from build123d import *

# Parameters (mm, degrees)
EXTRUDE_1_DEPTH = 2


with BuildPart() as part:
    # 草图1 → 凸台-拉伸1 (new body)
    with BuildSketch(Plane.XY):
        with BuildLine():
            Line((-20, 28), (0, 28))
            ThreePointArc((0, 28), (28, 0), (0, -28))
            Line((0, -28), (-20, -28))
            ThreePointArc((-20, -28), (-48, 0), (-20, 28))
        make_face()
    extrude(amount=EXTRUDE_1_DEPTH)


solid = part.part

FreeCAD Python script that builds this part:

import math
import FreeCAD as App
import Part
import Sketcher
from FreeCAD import Vector
Q = App.Units.Quantity

doc = App.newDocument("Part")
body = doc.addObject("PartDesign::Body", "Body")

# Sketch on XY plane
sketch1 = doc.addObject("Sketcher::SketchObject", "Sketch")
body.addObject(sketch1)
sketch1.AttachmentSupport = (doc.XY_Plane, [""])
sketch1.MapMode = "FlatFace"
sketch1.addGeometry(Part.LineSegment(Vector(0, 28, 0), Vector(-20, 28, 0)), False)
sketch1.addGeometry(Part.ArcOfCircle(Part.Circle(Vector(-20, 0, 0), Vector(0, 0, 1), 28), math.radians(90), math.radians(270)), False)
sketch1.addGeometry(Part.LineSegment(Vector(-20, -28, 0), Vector(0, -28, 0)), False)
sketch1.addGeometry(Part.ArcOfCircle(Part.Circle(Vector(0, 0, 0), Vector(0, 0, 1), 28), math.radians(-90), math.radians(90)), False)
sketch1.addConstraint(Sketcher.Constraint("Tangent", 0, 2, 1, 1))
sketch1.addConstraint(Sketcher.Constraint("Tangent", 1, 2, 2, 1))
sketch1.addConstraint(Sketcher.Constraint("Tangent", 2, 2, 3, 1))
sketch1.addConstraint(Sketcher.Constraint("Tangent", 3, 2, 0, 1))
sketch1.addConstraint(Sketcher.Constraint("Horizontal", 0))
sketch1.addConstraint(Sketcher.Constraint("Horizontal", 2))
sketch1.addConstraint(Sketcher.Constraint("Coincident", 3, 3, -1, 1))
sketch1.addConstraint(Sketcher.Constraint("Radius", 1, Q("28 mm")))
sketch1.addConstraint(Sketcher.Constraint("DistanceX", 0, 2, 0, 1, Q("20 mm")))
pad1 = doc.addObject("PartDesign::Pad", "Pad")
body.addObject(pad1)
pad1.Profile = sketch1
pad1.Length = 2

doc.recompute()
